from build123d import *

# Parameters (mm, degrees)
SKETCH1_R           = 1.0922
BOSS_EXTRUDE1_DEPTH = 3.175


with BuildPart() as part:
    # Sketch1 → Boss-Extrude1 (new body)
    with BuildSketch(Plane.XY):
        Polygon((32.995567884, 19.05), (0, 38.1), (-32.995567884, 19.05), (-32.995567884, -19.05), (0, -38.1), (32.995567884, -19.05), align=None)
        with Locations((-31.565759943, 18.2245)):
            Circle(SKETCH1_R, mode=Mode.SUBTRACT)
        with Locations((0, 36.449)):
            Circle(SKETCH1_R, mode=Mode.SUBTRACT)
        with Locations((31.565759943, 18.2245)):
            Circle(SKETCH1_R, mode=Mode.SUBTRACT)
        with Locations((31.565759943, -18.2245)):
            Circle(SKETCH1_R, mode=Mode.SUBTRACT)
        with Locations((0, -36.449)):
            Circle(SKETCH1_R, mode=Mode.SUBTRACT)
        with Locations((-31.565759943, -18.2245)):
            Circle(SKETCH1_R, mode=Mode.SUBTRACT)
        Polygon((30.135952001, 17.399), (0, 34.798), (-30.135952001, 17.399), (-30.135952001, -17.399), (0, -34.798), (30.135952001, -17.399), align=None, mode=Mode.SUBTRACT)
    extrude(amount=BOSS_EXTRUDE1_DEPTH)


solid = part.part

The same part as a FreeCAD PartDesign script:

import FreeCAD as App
import Part
import Sketcher
Q = App.Units.Quantity


def add_polygon(sketch, points):
    """Adds a closed chain of lines whose ends are joined by coincident constraints."""
    first, n = sketch.GeometryCount, len(points)
    for a, b in zip(points, points[1:] + points[:1]):
        sketch.addGeometry(Part.LineSegment(App.Vector(*a, 0), App.Vector(*b, 0)), False)
    for i in range(n):
        sketch.addConstraint(Sketcher.Constraint("Coincident", first + i, 2, first + (i + 1) % n, 1))

doc = App.newDocument("Part")
body = doc.addObject("PartDesign::Body", "Body")

# Sketch on XY plane
sketch1 = body.newObject("Sketcher::SketchObject", "Sketch")
sketch1.AttachmentSupport = (doc.getObject("XY_Plane"), [""])
sketch1.MapMode = "FlatFace"
add_polygon(sketch1, [(33, 19.1), (0, 38.1), (-33, 19.1), (-33, -19.1), (0, -38.1), (33, -19.1)])  # lines 0-5
sketch1.addGeometry(Part.Circle(App.Vector(-31.6, -18.2, 0), App.Vector(0, 0, 1), 1.1), False)  # 6
sketch1.addGeometry(Part.Circle(App.Vector(0, -36.4, 0), App.Vector(0, 0, 1), 1.1), False)  # 7
sketch1.addGeometry(Part.Circle(App.Vector(31.6, -18.2, 0), App.Vector(0, 0, 1), 1.1), False)  # 8
sketch1.addGeometry(Part.Circle(App.Vector(-31.6, 18.2, 0), App.Vector(0, 0, 1), 1.1), False)  # 9
add_polygon(sketch1, [(0, 34.8), (30.1, 17.4), (30.1, -17.4), (0, -34.8), (-30.1, -17.4), (-30.1, 17.4)])  # lines 10-15
sketch1.addGeometry(Part.Circle(App.Vector(31.6, 18.2, 0), App.Vector(0, 0, 1), 1.1), False)  # 16
sketch1.addGeometry(Part.Circle(App.Vector(0, 36.4, 0), App.Vector(0, 0, 1), 1.1), False)  # 17
sketch1.addConstraint([
    Sketcher.Constraint("Vertical", 2),
    Sketcher.Constraint("Vertical", 5),
    Sketcher.Constraint("Vertical", 11),
    Sketcher.Constraint("Vertical", 14),
    Sketcher.Constraint("Equal", 6, 7),
    Sketcher.Constraint("Equal", 7, 8),
    Sketcher.Constraint("Equal", 8, 9),
    Sketcher.Constraint("Equal", 9, 16),
    Sketcher.Constraint("Equal", 16, 17),
    Sketcher.Constraint("Symmetric", 8, 3, 9, 3, -1, 1),
    Sketcher.Constraint("Symmetric", 6, 3, 16, 3, -1, 1),
    Sketcher.Constraint("Symmetric", 7, 3, 17, 3, -1, 1),
    Sketcher.Constraint("Symmetric", 0, 2, 3, 2, -1, 1),
    Sketcher.Constraint("Symmetric", 1, 2, 4, 2, -1, 1),
    Sketcher.Constraint("Symmetric", 10, 2, 13, 2, -1, 1),
    Sketcher.Constraint("Symmetric", 12, 2, 15, 2, -1, 1),
    Sketcher.Constraint("Symmetric", 6, 3, 8, 3, -2),
    Sketcher.Constraint("PointOnObject", 7, 3, -2),
    Sketcher.Constraint("PointOnObject", 0, 2, -2),
    Sketcher.Constraint("PointOnObject", 12, 2, -2),
    Sketcher.Constraint("Parallel", 0, 3),
    Sketcher.Constraint("Parallel", 3, 10),
    Sketcher.Constraint("Parallel", 4, 12),
    Sketcher.Constraint("Parallel", 12, 15),
    Sketcher.Constraint("Horizontal", 2, 2, 4, 2),
    Sketcher.Constraint("Diameter", 6, Q("0.086 in")),
    Sketcher.Constraint("DistanceY", 2, 2, 2, 1, Q("1.5 in")),
    Sketcher.Constraint("Angle", 0, Q("150 deg")),
    Sketcher.Constraint("Distance", 0, Q("1.5 in")),
    Sketcher.Constraint("DistanceY", 11, 2, 11, 1, Q("1.37 in")),
    Sketcher.Constraint("Distance", 10, Q("1.37 in")),
    Sketcher.Constraint("DistanceY", 7, 3, 17, 3, Q("2.87 in")),
    Sketcher.Constraint("DistanceY", 6, 3, 9, 3, Q("1.435 in")),
    Sketcher.Constraint("DistanceX", 6, 3, -1, 1, Q("31.56576 mm")),
])
pad1 = body.newObject("PartDesign::Pad", "Pad")
pad1.Profile = sketch1
pad1.Length = Q("0.125 in")

doc.recompute()
